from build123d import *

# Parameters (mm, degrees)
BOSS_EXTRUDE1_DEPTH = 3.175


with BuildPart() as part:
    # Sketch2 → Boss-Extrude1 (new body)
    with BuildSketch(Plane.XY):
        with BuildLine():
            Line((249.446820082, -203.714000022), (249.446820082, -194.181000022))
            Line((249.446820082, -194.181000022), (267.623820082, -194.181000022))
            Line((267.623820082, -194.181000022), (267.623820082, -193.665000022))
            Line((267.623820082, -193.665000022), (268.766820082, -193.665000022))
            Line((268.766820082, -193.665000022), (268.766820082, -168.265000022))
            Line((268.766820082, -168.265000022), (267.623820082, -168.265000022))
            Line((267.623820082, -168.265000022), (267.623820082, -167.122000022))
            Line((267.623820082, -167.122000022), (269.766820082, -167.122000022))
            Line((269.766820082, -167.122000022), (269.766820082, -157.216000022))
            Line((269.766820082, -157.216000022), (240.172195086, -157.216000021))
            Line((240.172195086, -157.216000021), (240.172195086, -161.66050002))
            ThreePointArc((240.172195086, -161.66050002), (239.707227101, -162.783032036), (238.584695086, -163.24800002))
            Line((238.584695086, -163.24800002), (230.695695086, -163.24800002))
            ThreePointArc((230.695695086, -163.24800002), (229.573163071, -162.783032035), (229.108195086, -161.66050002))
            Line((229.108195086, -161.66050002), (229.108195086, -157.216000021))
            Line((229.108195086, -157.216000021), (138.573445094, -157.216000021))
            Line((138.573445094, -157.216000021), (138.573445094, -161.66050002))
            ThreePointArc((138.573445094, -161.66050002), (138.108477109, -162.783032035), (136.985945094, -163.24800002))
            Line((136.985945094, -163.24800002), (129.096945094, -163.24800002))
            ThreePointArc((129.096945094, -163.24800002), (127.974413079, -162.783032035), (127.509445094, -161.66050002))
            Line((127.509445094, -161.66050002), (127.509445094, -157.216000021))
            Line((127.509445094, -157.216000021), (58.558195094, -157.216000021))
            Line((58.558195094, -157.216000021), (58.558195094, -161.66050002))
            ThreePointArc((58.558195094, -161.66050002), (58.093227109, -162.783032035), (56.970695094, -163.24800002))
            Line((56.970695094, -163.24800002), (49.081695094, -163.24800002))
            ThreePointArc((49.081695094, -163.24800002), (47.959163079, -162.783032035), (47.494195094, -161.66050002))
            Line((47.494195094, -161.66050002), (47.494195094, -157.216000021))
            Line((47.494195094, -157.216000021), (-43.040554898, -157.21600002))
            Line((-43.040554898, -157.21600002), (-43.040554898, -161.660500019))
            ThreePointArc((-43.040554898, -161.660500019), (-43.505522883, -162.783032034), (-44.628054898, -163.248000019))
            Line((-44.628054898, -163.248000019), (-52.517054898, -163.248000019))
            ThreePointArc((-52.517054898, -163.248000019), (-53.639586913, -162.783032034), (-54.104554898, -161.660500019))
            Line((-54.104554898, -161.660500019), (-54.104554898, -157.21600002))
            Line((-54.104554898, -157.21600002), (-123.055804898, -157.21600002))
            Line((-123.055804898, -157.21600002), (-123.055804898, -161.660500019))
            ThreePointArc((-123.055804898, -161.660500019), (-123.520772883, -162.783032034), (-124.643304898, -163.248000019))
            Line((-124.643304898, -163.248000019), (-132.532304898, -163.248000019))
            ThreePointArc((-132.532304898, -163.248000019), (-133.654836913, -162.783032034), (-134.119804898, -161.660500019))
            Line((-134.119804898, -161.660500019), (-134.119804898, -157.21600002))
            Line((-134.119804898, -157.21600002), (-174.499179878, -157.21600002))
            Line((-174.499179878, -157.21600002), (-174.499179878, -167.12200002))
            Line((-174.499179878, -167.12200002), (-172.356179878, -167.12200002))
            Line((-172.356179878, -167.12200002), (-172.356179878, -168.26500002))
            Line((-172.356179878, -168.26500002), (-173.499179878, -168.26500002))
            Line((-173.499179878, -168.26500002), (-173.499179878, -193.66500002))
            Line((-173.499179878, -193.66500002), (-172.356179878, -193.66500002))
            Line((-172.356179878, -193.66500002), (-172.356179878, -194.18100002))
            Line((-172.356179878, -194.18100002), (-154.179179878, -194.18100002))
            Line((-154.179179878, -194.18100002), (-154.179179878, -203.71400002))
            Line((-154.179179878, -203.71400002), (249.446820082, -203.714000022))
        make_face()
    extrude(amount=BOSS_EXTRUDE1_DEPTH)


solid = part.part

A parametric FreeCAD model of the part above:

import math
import FreeCAD as App
import Part
import Sketcher
from FreeCAD import Vector
Q = App.Units.Quantity

doc = App.newDocument("Part")
params = doc.addObject("Spreadsheet::Sheet", "Params")
for row, (alias, value) in enumerate([
    ("sketch1_height", "1 in"),
    ("sketch1_radius", "0.0625 in"),
    ("sketch1_height2", "0.39 in"),
    ("sketch1_width", "0.045 in"),
    ("pad1_length", "0.125 in"),
], start=1):
    params.set(f"A{row}", alias)
    params.set(f"B{row}", "=" + value)
    params.setAlias(f"B{row}", alias)

body = doc.addObject("PartDesign::Body", "Body")

sketch1 = body.newObject("Sketcher::SketchObject", "Sketch")
sketch1.AttachmentSupport = (doc.getObject("XY_Plane"), [""])
sketch1.MapMode = "FlatFace"
sketch1.addGeometry([
    Part.LineSegment(Vector(249.4, -203.7, 0), Vector(249.4, -194.2, 0)),
    Part.LineSegment(Vector(249.4, -194.2, 0), Vector(267.6, -194.2, 0)),
    Part.LineSegment(Vector(267.6, -194.2, 0), Vector(267.6, -193.7, 0)),
    Part.LineSegment(Vector(267.6, -193.7, 0), Vector(268.8, -193.7, 0)),
    Part.LineSegment(Vector(268.8, -193.7, 0), Vector(268.8, -168.3, 0)),
    Part.LineSegment(Vector(268.8, -168.3, 0), Vector(267.6, -168.3, 0)),
    Part.LineSegment(Vector(267.6, -168.3, 0), Vector(267.6, -167.1, 0)),
    Part.LineSegment(Vector(267.6, -167.1, 0), Vector(269.8, -167.1, 0)),
    Part.LineSegment(Vector(269.8, -167.1, 0), Vector(269.8, -157.2, 0)),
    Part.LineSegment(Vector(269.8, -157.2, 0), Vector(240.2, -157.2, 0)),
    Part.LineSegment(Vector(240.2, -157.2, 0), Vector(240.2, -161.7, 0)),
    Part.ArcOfCircle(Part.Circle(Vector(238.6, -161.7, 0), Vector(0, 0, 1), 1.6), math.radians(-90), math.radians(0)),
    Part.LineSegment(Vector(238.6, -163.2, 0), Vector(230.7, -163.2, 0)),
    Part.ArcOfCircle(Part.Circle(Vector(230.7, -161.7, 0), Vector(0, 0, 1), 1.6), math.radians(180), math.radians(270)),
    Part.LineSegment(Vector(229.1, -161.7, 0), Vector(229.1, -157.2, 0)),
    Part.LineSegment(Vector(229.1, -157.2, 0), Vector(138.6, -157.2, 0)),
    Part.LineSegment(Vector(138.6, -157.2, 0), Vector(138.6, -161.7, 0)),
    Part.ArcOfCircle(Part.Circle(Vector(137, -161.7, 0), Vector(0, 0, 1), 1.6), math.radians(-90), math.radians(0)),
    Part.LineSegment(Vector(137, -163.2, 0), Vector(129.1, -163.2, 0)),
    Part.ArcOfCircle(Part.Circle(Vector(129.1, -161.7, 0), Vector(0, 0, 1), 1.6), math.radians(180), math.radians(270)),
    Part.LineSegment(Vector(127.5, -161.7, 0), Vector(127.5, -157.2, 0)),
    Part.LineSegment(Vector(127.5, -157.2, 0), Vector(58.6, -157.2, 0)),
    Part.LineSegment(Vector(58.6, -157.2, 0), Vector(58.6, -161.7, 0)),
    Part.ArcOfCircle(Part.Circle(Vector(57, -161.7, 0), Vector(0, 0, 1), 1.6), math.radians(-90), math.radians(0)),
    Part.LineSegment(Vector(57, -163.2, 0), Vector(49.1, -163.2, 0)),
    Part.ArcOfCircle(Part.Circle(Vector(49.1, -161.7, 0), Vector(0, 0, 1), 1.6), math.radians(180), math.radians(270)),
    Part.LineSegment(Vector(47.5, -161.7, 0), Vector(47.5, -157.2, 0)),
    Part.LineSegment(Vector(47.5, -157.2, 0), Vector(-43, -157.2, 0)),
    Part.LineSegment(Vector(-43, -157.2, 0), Vector(-43, -161.7, 0)),
    Part.ArcOfCircle(Part.Circle(Vector(-44.6, -161.7, 0), Vector(0, 0, 1), 1.6), math.radians(-90), math.radians(0)),
    Part.LineSegment(Vector(-44.6, -163.2, 0), Vector(-52.5, -163.2, 0)),
    Part.ArcOfCircle(Part.Circle(Vector(-52.5, -161.7, 0), Vector(0, 0, 1), 1.6), math.radians(180), math.radians(270)),
    Part.LineSegment(Vector(-54.1, -161.7, 0), Vector(-54.1, -157.2, 0)),
    Part.LineSegment(Vector(-54.1, -157.2, 0), Vector(-123.1, -157.2, 0)),
    Part.LineSegment(Vector(-123.1, -157.2, 0), Vector(-123.1, -161.7, 0)),
    Part.ArcOfCircle(Part.Circle(Vector(-124.6, -161.7, 0), Vector(0, 0, 1), 1.6), math.radians(-90), math.radians(0)),
    Part.LineSegment(Vector(-124.6, -163.2, 0), Vector(-132.5, -163.2, 0)),
    Part.ArcOfCircle(Part.Circle(Vector(-132.5, -161.7, 0), Vector(0, 0, 1), 1.6), math.radians(180), math.radians(270)),
    Part.LineSegment(Vector(-134.1, -161.7, 0), Vector(-134.1, -157.2, 0)),
    Part.LineSegment(Vector(-134.1, -157.2, 0), Vector(-174.5, -157.2, 0)),
    Part.LineSegment(Vector(-174.5, -157.2, 0), Vector(-174.5, -167.1, 0)),
    Part.LineSegment(Vector(-174.5, -167.1, 0), Vector(-172.4, -167.1, 0)),
    Part.LineSegment(Vector(-172.4, -167.1, 0), Vector(-172.4, -168.3, 0)),
    Part.LineSegment(Vector(-172.4, -168.3, 0), Vector(-173.5, -168.3, 0)),
    Part.LineSegment(Vector(-173.5, -168.3, 0), Vector(-173.5, -193.7, 0)),
    Part.LineSegment(Vector(-173.5, -193.7, 0), Vector(-172.4, -193.7, 0)),
    Part.LineSegment(Vector(-172.4, -193.7, 0), Vector(-172.4, -194.2, 0)),
    Part.LineSegment(Vector(-172.4, -194.2, 0), Vector(-154.2, -194.2, 0)),
    Part.LineSegment(Vector(-154.2, -194.2, 0), Vector(-154.2, -203.7, 0)),
    Part.LineSegment(Vector(-154.2, -203.7, 0), Vector(249.4, -203.7, 0)),
], False)
sketch1.addConstraint([
    Sketcher.Constraint("Coincident", 0, 2, 1, 1),
    Sketcher.Constraint("Coincident", 1, 2, 2, 1),
    Sketcher.Constraint("Coincident", 2, 2, 3, 1),
    Sketcher.Constraint("Coincident", 3, 2, 4, 1),
    Sketcher.Constraint("Coincident", 4, 2, 5, 1),
    Sketcher.Constraint("Coincident", 5, 2, 6, 1),
    Sketcher.Constraint("Coincident", 6, 2, 7, 1),
    Sketcher.Constraint("Coincident", 7, 2, 8, 1),
    Sketcher.Constraint("Coincident", 8, 2, 9, 1),
    Sketcher.Constraint("Coincident", 9, 2, 10, 1),
    Sketcher.Constraint("Tangent", 10, 2, 11, 2),
    Sketcher.Constraint("Tangent", 11, 1, 12, 1),
    Sketcher.Constraint("Tangent", 12, 2, 13, 2),
    Sketcher.Constraint("Tangent", 13, 1, 14, 1),
    Sketcher.Constraint("Coincident", 14, 2, 15, 1),
    Sketcher.Constraint("Coincident", 15, 2, 16, 1),
    Sketcher.Constraint("Tangent", 16, 2, 17, 2),
    Sketcher.Constraint("Tangent", 17, 1, 18, 1),
    Sketcher.Constraint("Tangent", 18, 2, 19, 2),
    Sketcher.Constraint("Tangent", 19, 1, 20, 1),
    Sketcher.Constraint("Coincident", 20, 2, 21, 1),
    Sketcher.Constraint("Coincident", 21, 2, 22, 1),
    Sketcher.Constraint("Tangent", 22, 2, 23, 2),
    Sketcher.Constraint("Tangent", 23, 1, 24, 1),
    Sketcher.Constraint("Tangent", 24, 2, 25, 2),
    Sketcher.Constraint("Tangent", 25, 1, 26, 1),
    Sketcher.Constraint("Coincident", 26, 2, 27, 1),
    Sketcher.Constraint("Coincident", 27, 2, 28, 1),
    Sketcher.Constraint("Tangent", 28, 2, 29, 2),
    Sketcher.Constraint("Tangent", 29, 1, 30, 1),
    Sketcher.Constraint("Tangent", 30, 2, 31, 2),
    Sketcher.Constraint("Tangent", 31, 1, 32, 1),
    Sketcher.Constraint("Coincident", 32, 2, 33, 1),
    Sketcher.Constraint("Coincident", 33, 2, 34, 1),
    Sketcher.Constraint("Tangent", 34, 2, 35, 2),
    Sketcher.Constraint("Tangent", 35, 1, 36, 1),
    Sketcher.Constraint("Tangent", 36, 2, 37, 2),
    Sketcher.Constraint("Tangent", 37, 1, 38, 1),
    Sketcher.Constraint("Coincident", 38, 2, 39, 1),
    Sketcher.Constraint("Coincident", 39, 2, 40, 1),
    Sketcher.Constraint("Coincident", 40, 2, 41, 1),
    Sketcher.Constraint("Coincident", 41, 2, 42, 1),
    Sketcher.Constraint("Coincident", 42, 2, 43, 1),
    Sketcher.Constraint("Coincident", 43, 2, 44, 1),
    Sketcher.Constraint("Coincident", 44, 2, 45, 1),
    Sketcher.Constraint("Coincident", 45, 2, 46, 1),
    Sketcher.Constraint("Coincident", 46, 2, 47, 1),
    Sketcher.Constraint("Coincident", 47, 2, 48, 1),
    Sketcher.Constraint("Coincident", 48, 2, 49, 1),
    Sketcher.Constraint("Coincident", 49, 2, 0, 1),
    Sketcher.Constraint("Vertical", 0),
    Sketcher.Constraint("Horizontal", 1),
    Sketcher.Constraint("Vertical", 2),
    Sketcher.Constraint("Horizontal", 3),
    Sketcher.Constraint("Vertical", 4),
    Sketcher.Constraint("Horizontal", 5),
    Sketcher.Constraint("Vertical", 6),
    Sketcher.Constraint("Horizontal", 7),
    Sketcher.Constraint("Vertical", 8),
    Sketcher.Constraint("Horizontal", 9),
    Sketcher.Constraint("Vertical", 10),
    Sketcher.Constraint("Horizontal", 12),
    Sketcher.Constraint("Vertical", 14),
    Sketcher.Constraint("Horizontal", 15),
    Sketcher.Constraint("Vertical", 16),
    Sketcher.Constraint("Horizontal", 18),
    Sketcher.Constraint("Vertical", 20),
    Sketcher.Constraint("Horizontal", 21),
    Sketcher.Constraint("Vertical", 22),
    Sketcher.Constraint("Horizontal", 24),
    Sketcher.Constraint("Vertical", 26),
    Sketcher.Constraint("Horizontal", 27),
    Sketcher.Constraint("Vertical", 28),
    Sketcher.Constraint("Horizontal", 30),
    Sketcher.Constraint("Vertical", 32),
    Sketcher.Constraint("Horizontal", 33),
    Sketcher.Constraint("Vertical", 34),
    Sketcher.Constraint("Horizontal", 36),
    Sketcher.Constraint("Vertical", 38),
    Sketcher.Constraint("Horizontal", 39),
    Sketcher.Constraint("Vertical", 40),
    Sketcher.Constraint("Horizontal", 41),
    Sketcher.Constraint("Vertical", 42),
    Sketcher.Constraint("Horizontal", 43),
    Sketcher.Constraint("Vertical", 44),
    Sketcher.Constraint("Horizontal", 45),
    Sketcher.Constraint("Vertical", 46),
    Sketcher.Constraint("Horizontal", 47),
    Sketcher.Constraint("Vertical", 48),
    Sketcher.Constraint("Horizontal", 49),
    Sketcher.Constraint("Equal", 11, 13),
    Sketcher.Constraint("Equal", 13, 17),
    Sketcher.Constraint("Equal", 17, 19),
    Sketcher.Constraint("Equal", 19, 23),
    Sketcher.Constraint("Equal", 23, 25),
    Sketcher.Constraint("Equal", 25, 29),
    Sketcher.Constraint("Equal", 29, 31),
    Sketcher.Constraint("Equal", 31, 35),
    Sketcher.Constraint("Equal", 35, 37),
    Sketcher.Constraint("Horizontal", 13, 3, 17, 3),
    Sketcher.Constraint("Horizontal", 19, 3, 23, 3),
    Sketcher.Constraint("Horizontal", 25, 3, 29, 3),
    Sketcher.Constraint("Horizontal", 31, 3, 35, 3),
    Sketcher.Constraint("Horizontal", 9, 2, 14, 2),
    Sketcher.Constraint("Horizontal", 15, 2, 20, 2),
    Sketcher.Constraint("Horizontal", 21, 2, 26, 2),
    Sketcher.Constraint("Horizontal", 27, 2, 32, 2),
    Sketcher.Constraint("Horizontal", 33, 2, 38, 2),
    Sketcher.Constraint("Horizontal", 7, 2, 40, 2),
    Sketcher.Constraint("Horizontal", 5, 2, 42, 2),
    Sketcher.Constraint("Horizontal", 3, 2, 44, 2),
    Sketcher.Constraint("Horizontal", 1, 2, 46, 2),
    Sketcher.Constraint("Vertical", 2, 2, 5, 2),
    Sketcher.Constraint("Vertical", 42, 2, 45, 2),
    Sketcher.Constraint("Equal", 12, 18),
    Sketcher.Constraint("Equal", 18, 24),
    Sketcher.Constraint("Equal", 15, 27),
    Sketcher.Constraint("Equal", 24, 30),
    Sketcher.Constraint("Equal", 21, 33),
    Sketcher.Constraint("Equal", 30, 36),
    Sketcher.Constraint("Equal", 7, 41),
    Sketcher.Constraint("Equal", 5, 43),
    Sketcher.Constraint("Equal", 1, 47),
    Sketcher.Constraint("Equal", 45, 6),
    Sketcher.Constraint("DistanceY", 4, 1, 4, 2, Q("1 in")),
    Sketcher.Constraint("Radius", 11, Q("0.0625 in")),
    Sketcher.Constraint("DistanceY", 8, 1, 8, 2, Q("0.39 in")),
    Sketcher.Constraint("DistanceX", 3, 1, 3, 2, Q("0.045 in")),
    Sketcher.Constraint("DistanceX", 1, 1, 1, 2, 18.177),
    Sketcher.Constraint("DistanceX", 7, 1, 7, 2, 2.143),
    Sketcher.Constraint("DistanceX", 12, 2, 12, 1, 7.889),
    Sketcher.Constraint("DistanceX", 49, 1, 49, 2, 403.626),
    Sketcher.Constraint("DistanceY", 0, 1, 0, 2, 9.533),
    Sketcher.Constraint("DistanceY", 2, 1, 2, 2, 0.516),
    Sketcher.Constraint("DistanceY", 10, 2, 10, 1, 4.4445),
    Sketcher.Constraint("DistanceX", 23, 3, 0, 2, Q("7.5778002 in")),
    Sketcher.Constraint("DistanceX", 15, 2, 15, 1, 90.53475),
    Sketcher.Constraint("DistanceX", 21, 2, 21, 1, 68.95125),
    Sketcher.Constraint("DistanceY", 11, 3, -1, 1, 161.6605),
    Sketcher.Constraint("DistanceX", -1, 1, 0, 2, 249.44682),
])
sketch1.setExpression("Constraints[124]", "Params.sketch1_height")
sketch1.setExpression("Constraints[125]", "Params.sketch1_radius")
sketch1.setExpression("Constraints[126]", "Params.sketch1_height2")
sketch1.setExpression("Constraints[127]", "Params.sketch1_width")
pad1 = body.newObject("PartDesign::Pad", "Pad")
pad1.Profile = sketch1
pad1.setExpression("Length", "Params.pad1_length")

doc.recompute()
